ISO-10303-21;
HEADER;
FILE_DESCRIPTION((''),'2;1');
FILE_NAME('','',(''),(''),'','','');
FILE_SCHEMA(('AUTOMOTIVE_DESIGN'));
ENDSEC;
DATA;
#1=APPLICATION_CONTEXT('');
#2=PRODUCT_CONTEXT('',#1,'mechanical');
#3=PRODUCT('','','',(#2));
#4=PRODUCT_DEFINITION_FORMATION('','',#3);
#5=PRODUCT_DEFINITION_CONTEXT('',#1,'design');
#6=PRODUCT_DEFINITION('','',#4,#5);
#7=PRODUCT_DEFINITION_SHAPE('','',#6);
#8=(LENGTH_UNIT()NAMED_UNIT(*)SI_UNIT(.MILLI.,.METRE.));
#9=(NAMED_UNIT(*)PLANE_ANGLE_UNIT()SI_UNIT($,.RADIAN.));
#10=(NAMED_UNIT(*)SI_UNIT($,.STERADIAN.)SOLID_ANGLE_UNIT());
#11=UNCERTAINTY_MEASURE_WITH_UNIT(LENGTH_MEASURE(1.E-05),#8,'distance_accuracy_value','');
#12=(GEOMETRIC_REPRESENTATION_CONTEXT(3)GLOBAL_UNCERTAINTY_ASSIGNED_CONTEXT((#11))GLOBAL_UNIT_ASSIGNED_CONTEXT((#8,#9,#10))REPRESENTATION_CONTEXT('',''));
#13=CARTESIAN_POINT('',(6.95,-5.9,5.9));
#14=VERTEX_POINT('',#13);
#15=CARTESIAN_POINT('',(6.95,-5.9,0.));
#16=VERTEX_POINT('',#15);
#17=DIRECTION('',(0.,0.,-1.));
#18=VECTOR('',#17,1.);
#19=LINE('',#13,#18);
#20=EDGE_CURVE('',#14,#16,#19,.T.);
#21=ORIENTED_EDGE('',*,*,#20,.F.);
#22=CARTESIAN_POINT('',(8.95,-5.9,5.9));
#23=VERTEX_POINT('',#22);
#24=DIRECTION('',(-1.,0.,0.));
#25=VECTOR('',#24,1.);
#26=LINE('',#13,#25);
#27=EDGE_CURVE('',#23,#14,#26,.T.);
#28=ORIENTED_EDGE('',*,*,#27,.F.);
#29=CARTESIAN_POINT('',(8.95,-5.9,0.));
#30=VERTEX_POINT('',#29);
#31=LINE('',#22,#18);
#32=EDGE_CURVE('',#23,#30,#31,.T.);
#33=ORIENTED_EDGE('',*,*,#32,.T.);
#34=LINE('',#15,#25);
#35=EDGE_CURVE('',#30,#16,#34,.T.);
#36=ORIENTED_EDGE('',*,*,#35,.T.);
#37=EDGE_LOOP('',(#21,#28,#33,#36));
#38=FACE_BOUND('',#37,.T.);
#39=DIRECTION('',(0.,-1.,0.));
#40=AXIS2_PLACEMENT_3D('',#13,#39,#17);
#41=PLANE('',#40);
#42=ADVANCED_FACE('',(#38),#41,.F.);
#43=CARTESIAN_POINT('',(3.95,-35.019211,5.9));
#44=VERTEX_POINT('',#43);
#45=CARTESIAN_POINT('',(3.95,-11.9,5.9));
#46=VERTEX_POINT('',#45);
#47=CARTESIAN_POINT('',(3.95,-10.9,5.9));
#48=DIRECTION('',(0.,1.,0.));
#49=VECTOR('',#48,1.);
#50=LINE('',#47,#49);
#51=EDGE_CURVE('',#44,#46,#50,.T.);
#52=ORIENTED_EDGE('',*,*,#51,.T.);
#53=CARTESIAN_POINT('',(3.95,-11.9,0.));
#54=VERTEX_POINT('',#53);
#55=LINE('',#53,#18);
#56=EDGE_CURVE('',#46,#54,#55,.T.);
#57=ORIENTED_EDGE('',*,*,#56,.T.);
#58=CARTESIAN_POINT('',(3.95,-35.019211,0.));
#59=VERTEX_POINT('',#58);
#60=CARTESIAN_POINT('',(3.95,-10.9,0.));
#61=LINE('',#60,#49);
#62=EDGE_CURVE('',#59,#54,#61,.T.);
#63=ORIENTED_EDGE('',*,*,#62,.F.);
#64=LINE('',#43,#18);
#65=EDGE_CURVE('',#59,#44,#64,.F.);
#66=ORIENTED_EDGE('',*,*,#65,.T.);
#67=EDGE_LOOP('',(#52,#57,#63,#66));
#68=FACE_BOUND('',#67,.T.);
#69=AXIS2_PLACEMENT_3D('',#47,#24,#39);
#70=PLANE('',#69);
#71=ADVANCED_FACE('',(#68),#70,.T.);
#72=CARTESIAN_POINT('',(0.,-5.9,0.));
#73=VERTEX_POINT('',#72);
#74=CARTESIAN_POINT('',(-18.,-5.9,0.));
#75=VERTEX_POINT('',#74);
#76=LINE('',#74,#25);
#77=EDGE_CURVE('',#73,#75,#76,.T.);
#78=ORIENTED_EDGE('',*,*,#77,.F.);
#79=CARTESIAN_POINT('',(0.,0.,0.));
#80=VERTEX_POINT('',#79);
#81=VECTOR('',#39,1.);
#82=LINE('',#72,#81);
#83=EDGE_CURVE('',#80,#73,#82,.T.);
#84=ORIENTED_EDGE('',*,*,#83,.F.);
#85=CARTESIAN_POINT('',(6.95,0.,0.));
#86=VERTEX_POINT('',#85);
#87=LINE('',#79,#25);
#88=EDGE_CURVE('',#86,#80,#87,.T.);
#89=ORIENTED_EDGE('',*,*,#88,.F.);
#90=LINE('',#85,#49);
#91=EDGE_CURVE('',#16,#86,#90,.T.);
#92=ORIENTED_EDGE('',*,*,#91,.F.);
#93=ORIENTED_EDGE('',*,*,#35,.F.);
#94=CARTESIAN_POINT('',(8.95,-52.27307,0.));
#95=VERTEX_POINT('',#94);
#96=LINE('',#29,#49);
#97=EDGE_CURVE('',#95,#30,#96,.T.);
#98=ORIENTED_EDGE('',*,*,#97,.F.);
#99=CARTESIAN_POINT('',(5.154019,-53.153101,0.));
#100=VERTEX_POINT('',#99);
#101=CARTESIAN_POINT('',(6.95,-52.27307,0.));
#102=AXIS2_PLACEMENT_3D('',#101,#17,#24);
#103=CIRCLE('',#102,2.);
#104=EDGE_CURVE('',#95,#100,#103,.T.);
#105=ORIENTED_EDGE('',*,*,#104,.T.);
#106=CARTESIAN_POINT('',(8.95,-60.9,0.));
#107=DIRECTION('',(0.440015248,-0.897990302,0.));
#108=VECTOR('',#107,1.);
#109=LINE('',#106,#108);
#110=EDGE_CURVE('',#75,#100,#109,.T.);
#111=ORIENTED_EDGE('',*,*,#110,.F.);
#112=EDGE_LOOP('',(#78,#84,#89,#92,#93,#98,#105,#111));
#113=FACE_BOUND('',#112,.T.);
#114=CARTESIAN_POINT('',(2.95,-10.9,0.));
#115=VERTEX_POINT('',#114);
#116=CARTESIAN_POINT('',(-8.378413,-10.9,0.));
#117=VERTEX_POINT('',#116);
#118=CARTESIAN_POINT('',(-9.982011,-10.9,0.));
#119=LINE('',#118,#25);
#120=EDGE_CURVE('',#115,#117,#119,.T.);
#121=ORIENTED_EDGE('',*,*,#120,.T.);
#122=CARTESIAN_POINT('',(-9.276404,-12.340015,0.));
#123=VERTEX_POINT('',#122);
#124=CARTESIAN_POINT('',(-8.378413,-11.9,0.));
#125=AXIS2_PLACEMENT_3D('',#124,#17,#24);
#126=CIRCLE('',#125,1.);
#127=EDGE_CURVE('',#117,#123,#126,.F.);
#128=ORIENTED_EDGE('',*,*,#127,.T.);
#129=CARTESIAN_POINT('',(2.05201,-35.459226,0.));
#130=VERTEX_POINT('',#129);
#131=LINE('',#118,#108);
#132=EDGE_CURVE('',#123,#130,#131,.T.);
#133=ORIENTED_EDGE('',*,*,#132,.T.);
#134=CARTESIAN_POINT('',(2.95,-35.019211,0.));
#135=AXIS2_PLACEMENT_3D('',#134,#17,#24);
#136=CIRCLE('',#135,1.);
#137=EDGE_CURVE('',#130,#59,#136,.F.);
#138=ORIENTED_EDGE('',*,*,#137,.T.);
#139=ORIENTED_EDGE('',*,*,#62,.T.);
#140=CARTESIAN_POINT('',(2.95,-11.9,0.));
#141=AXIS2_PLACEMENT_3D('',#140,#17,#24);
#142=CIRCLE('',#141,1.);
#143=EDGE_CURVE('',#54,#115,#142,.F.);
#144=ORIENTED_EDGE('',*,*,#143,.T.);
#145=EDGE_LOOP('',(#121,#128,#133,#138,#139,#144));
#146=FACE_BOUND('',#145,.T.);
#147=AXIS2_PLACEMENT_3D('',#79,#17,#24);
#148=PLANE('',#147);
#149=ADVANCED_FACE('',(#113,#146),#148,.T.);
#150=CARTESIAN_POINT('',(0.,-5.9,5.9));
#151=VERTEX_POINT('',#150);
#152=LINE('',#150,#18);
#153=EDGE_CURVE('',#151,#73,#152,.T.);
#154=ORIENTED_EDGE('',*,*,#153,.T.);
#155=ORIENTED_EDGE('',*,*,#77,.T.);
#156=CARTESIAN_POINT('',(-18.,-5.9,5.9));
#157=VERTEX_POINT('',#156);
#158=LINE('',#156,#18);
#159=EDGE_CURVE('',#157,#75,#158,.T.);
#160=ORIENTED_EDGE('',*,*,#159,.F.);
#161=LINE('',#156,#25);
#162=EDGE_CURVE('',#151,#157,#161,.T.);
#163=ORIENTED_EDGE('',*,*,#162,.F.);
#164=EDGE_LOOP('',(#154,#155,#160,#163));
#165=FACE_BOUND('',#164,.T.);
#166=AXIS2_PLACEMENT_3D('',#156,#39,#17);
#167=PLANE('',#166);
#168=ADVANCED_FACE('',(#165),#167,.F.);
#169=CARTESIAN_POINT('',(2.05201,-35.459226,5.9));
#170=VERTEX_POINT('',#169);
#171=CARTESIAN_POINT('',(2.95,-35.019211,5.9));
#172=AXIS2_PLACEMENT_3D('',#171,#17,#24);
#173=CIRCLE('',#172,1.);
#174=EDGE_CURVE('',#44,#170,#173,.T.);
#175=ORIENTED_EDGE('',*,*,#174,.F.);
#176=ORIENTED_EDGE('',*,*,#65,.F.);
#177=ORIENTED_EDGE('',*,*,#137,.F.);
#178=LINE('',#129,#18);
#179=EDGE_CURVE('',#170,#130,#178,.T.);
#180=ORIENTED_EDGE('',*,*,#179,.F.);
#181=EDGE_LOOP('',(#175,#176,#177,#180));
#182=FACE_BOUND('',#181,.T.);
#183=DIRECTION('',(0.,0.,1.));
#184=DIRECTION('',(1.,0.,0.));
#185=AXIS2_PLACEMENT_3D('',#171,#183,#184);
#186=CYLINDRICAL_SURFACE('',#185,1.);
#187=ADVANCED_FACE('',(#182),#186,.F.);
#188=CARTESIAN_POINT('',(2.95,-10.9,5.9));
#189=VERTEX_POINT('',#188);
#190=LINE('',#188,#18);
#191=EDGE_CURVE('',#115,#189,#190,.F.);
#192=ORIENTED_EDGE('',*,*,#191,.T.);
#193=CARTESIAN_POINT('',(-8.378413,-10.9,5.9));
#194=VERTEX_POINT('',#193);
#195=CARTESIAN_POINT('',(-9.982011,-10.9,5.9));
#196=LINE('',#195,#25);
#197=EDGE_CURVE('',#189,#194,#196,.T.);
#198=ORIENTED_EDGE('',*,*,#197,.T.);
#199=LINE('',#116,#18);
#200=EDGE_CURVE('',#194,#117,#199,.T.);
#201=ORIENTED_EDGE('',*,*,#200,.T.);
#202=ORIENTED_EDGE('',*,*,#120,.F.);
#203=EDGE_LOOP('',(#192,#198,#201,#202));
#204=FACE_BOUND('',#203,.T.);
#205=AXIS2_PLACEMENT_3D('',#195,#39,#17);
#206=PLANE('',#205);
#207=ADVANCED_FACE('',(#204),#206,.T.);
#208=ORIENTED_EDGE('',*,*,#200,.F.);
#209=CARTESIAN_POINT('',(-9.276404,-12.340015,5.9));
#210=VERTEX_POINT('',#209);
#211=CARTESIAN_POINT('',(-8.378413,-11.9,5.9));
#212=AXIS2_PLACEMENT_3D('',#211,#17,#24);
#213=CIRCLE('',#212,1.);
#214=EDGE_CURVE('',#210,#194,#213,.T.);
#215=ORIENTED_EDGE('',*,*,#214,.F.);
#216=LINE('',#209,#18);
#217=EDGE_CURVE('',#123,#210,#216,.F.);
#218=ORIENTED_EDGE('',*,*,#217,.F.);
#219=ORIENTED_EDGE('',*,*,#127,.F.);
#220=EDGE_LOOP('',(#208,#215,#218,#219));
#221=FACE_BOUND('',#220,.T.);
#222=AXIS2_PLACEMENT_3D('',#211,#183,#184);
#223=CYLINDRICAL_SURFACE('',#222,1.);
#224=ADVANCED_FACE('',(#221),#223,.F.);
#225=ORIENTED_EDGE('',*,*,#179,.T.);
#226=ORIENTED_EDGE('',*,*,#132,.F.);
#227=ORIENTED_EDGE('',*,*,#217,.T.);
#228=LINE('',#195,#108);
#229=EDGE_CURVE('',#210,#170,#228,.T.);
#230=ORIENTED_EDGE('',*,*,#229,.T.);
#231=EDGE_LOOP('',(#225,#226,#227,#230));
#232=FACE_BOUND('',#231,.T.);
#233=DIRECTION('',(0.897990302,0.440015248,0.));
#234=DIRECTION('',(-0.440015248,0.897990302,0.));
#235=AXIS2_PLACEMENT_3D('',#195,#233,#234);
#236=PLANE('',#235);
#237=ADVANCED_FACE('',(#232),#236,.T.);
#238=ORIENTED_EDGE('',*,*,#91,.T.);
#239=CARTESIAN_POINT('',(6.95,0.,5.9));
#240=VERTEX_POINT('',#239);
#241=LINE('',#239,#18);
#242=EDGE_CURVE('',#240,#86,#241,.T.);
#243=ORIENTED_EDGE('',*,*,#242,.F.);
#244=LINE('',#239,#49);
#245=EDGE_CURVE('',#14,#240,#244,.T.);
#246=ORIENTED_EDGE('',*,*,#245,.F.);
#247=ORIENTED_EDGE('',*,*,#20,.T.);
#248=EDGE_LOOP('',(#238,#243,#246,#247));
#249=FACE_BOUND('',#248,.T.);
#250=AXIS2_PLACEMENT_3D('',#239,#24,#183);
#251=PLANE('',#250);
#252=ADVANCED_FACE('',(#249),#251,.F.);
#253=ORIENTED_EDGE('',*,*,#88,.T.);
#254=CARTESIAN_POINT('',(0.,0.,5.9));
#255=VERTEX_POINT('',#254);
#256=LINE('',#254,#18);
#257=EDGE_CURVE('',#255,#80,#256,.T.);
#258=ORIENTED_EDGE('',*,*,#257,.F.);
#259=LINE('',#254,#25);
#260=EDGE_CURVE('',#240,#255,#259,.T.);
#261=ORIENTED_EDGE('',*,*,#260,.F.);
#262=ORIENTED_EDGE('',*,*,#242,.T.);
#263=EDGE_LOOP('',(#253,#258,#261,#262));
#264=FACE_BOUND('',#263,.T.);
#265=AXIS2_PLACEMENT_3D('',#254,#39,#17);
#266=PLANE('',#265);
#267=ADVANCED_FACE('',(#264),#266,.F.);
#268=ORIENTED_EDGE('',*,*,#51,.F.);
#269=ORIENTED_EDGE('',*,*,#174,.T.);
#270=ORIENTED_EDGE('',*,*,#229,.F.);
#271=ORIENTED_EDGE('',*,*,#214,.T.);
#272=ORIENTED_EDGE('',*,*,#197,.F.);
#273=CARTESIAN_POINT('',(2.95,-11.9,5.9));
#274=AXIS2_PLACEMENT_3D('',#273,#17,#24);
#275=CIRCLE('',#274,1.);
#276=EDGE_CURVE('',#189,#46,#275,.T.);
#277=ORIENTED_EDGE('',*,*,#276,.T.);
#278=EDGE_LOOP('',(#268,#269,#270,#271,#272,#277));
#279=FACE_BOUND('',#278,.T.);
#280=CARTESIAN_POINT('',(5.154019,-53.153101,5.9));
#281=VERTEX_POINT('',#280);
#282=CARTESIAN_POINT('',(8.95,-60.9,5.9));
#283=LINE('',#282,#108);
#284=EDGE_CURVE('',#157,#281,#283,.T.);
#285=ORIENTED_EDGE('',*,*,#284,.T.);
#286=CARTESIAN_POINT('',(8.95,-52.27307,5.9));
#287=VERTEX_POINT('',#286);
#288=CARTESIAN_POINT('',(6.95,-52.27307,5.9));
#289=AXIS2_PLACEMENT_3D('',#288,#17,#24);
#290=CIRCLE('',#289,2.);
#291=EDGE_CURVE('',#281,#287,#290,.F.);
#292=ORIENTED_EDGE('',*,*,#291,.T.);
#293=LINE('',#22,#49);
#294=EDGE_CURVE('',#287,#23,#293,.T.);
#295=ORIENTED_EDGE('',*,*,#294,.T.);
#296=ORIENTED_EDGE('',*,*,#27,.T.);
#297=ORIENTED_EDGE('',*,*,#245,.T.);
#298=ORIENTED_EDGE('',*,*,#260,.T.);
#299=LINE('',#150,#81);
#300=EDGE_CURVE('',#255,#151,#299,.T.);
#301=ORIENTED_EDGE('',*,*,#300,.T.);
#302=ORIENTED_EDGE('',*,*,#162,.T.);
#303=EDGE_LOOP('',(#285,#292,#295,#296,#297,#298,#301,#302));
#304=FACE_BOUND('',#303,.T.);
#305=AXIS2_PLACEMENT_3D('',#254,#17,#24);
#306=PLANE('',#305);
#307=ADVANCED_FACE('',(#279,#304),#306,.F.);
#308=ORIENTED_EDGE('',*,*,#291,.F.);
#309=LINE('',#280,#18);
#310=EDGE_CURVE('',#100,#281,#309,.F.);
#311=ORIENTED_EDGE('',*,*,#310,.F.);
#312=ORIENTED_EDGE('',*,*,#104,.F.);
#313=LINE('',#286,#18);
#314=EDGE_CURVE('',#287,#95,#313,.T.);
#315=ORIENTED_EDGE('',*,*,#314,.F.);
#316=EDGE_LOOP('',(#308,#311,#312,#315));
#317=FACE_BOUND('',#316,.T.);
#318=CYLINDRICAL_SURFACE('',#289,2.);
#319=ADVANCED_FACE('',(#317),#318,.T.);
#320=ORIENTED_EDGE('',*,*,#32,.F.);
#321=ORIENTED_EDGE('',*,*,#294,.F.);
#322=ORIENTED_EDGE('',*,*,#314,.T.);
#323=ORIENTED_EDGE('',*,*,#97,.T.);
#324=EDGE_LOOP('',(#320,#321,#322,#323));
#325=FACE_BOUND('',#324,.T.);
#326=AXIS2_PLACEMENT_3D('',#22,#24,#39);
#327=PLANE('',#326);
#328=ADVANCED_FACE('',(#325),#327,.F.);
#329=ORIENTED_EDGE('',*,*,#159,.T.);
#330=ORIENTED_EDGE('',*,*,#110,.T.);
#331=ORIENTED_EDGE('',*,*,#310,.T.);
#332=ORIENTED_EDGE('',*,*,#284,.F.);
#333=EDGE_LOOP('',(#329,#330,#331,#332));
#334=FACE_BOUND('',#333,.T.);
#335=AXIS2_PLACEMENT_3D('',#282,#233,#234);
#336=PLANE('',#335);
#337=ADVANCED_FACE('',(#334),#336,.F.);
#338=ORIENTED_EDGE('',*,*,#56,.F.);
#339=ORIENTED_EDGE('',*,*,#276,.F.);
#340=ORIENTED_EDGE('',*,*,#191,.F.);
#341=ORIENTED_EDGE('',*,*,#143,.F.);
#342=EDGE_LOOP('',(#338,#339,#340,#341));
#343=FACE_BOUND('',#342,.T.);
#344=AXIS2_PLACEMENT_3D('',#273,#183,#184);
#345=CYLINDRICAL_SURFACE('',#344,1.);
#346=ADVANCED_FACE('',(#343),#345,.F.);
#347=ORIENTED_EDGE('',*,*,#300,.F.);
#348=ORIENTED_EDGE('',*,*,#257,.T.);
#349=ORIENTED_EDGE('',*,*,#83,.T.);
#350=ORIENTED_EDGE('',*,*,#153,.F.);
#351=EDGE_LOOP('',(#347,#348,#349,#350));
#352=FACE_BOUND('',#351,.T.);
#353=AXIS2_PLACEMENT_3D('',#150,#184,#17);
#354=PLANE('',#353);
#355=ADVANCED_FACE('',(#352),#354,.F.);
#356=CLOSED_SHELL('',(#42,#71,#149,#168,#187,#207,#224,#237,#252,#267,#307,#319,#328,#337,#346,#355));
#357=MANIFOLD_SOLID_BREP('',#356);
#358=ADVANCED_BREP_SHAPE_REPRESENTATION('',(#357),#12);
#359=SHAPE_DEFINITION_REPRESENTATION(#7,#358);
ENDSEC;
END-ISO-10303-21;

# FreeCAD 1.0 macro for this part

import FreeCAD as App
import Part
import Sketcher

V = App.Vector
Q = App.Units.Quantity


def edges_at(feature, points):
    """Names of the edges that pass closest to the given points."""
    edges = feature.Shape.Edges
    near = lambda p: min(range(len(edges)), key=lambda i: edges[i].distToShape(Part.Vertex(*p))[0])
    return sorted({f"Edge{near(p) + 1}" for p in points})


def add_polygon(sketch, points):
    """Adds a closed chain of lines whose ends are joined by coincident constraints."""
    first, n = sketch.GeometryCount, len(points)
    for a, b in zip(points, points[1:] + points[:1]):
        sketch.addGeometry(Part.LineSegment(App.Vector(*a, 0), App.Vector(*b, 0)), False)
    for i in range(n):
        sketch.addConstraint(Sketcher.Constraint("Coincident", first + i, 2, first + (i + 1) % n, 1))

doc = App.newDocument("Part")
body = doc.addObject("PartDesign::Body", "Body")

# Sketch on XY plane
sketch1 = doc.addObject("Sketcher::SketchObject", "Sketch")
body.addObject(sketch1)
sketch1.AttachmentSupport = (doc.XY_Plane, [""])
sketch1.MapMode = "FlatFace"
add_polygon(sketch1, [(7, 0), (0, 0), (0, -5.9), (-18, -5.9), (8.9, -60.9), (8.9, -5.9), (7, -5.9)])  # lines 0-6
add_polygon(sketch1, [(-10, -10.9), (4, -10.9), (4, -39.3)])  # lines 7-9
sketch1.addConstraint([
    Sketcher.Constraint("Horizontal", 0),
    Sketcher.Constraint("Vertical", 1),
    Sketcher.Constraint("Horizontal", 2),
    Sketcher.Constraint("Vertical", 4),
    Sketcher.Constraint("Horizontal", 5),
    Sketcher.Constraint("Vertical", 6),
    Sketcher.Constraint("Horizontal", 7),
    Sketcher.Constraint("Vertical", 8),
    Sketcher.Constraint("Coincident", 0, 2, -1, 1),
    Sketcher.Constraint("Parallel", 3, 9),
    Sketcher.Constraint("Horizontal", 2, 2, 4, 2),
    Sketcher.Constraint("DistanceX", 2, 2, 2, 1, Q("18 mm")),
    Sketcher.Constraint("DistanceX", 5, 2, 5, 1, Q("2 mm")),
    Sketcher.Constraint("DistanceY", 4, 1, 4, 2, Q("55 mm")),
    Sketcher.Constraint("DistanceY", 1, 2, 1, 1, Q("5.9 mm")),
    Sketcher.Constraint("DistanceX", 7, 2, 5, 2, Q("3 mm")),
    Sketcher.Constraint("DistanceY", 7, 2, 5, 2, Q("5 mm")),
    Sketcher.Constraint("DistanceX", 0, 2, 0, 1, Q("6.95 mm")),
    Sketcher.Constraint("DistanceX", 7, 1, 7, 2, Q("13.932011 mm")),
])
pad1 = doc.addObject("PartDesign::Pad", "Pad")
body.addObject(pad1)
pad1.Profile = sketch1
pad1.Length = 5.9
doc.recompute()

fillet = doc.addObject("PartDesign::Fillet", "Fillet")
body.addObject(fillet)
fillet.Base = (pad1, edges_at(pad1, [(8.95, -60.9, 2.95)]))
fillet.Radius = 2
doc.recompute()

fillet2 = doc.addObject("PartDesign::Fillet", "Fillet001")
body.addObject(fillet2)
fillet2.Base = (fillet, edges_at(fillet, [(-9.982, -10.9, 2.95), (3.95, -39.333, 2.95), (3.95, -10.9, 2.95)]))
fillet2.Radius = 1

doc.recompute()
